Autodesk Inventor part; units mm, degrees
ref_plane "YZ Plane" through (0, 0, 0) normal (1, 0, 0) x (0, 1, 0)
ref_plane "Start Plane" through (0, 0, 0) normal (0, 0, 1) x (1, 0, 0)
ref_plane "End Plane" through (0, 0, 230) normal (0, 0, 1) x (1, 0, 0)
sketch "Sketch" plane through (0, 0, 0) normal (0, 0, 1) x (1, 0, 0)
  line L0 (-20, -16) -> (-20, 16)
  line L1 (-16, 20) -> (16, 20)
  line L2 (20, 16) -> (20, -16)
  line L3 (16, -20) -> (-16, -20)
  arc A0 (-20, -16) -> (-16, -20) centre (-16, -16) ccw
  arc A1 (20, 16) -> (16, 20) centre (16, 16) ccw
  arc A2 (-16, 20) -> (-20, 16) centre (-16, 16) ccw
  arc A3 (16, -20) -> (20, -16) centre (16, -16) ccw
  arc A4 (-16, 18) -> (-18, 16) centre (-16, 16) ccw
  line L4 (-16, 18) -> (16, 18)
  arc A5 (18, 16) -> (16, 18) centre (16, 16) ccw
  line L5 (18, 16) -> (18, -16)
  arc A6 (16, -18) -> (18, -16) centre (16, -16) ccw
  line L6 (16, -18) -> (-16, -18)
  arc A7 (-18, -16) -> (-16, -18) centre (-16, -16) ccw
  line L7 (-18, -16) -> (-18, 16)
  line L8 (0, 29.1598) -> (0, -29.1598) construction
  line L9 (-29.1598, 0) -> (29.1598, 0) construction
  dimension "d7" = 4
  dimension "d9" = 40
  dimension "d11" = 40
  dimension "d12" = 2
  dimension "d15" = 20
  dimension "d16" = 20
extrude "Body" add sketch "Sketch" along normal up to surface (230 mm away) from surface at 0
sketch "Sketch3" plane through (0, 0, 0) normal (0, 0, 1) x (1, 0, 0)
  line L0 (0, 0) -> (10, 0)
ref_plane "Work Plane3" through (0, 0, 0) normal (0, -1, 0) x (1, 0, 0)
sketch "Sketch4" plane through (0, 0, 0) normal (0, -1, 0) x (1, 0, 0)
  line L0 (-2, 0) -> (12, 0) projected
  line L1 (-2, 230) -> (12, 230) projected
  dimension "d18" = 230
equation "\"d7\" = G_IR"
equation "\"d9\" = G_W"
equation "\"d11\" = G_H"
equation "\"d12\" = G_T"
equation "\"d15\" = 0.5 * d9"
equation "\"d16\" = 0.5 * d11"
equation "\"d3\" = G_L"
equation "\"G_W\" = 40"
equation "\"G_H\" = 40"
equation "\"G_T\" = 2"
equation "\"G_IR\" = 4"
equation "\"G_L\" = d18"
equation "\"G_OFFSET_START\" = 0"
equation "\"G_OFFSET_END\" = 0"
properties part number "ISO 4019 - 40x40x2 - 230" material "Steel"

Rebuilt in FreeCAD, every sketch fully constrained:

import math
import FreeCAD as App
import Part
import Sketcher
Q = App.Units.Quantity

doc = App.newDocument("Part")
params = doc.addObject("Spreadsheet::Sheet", "Params")
for row, (alias, value) in enumerate([
    ("sketch1_radius", "4 mm"),
    ("sketch1_radius2", "2 mm"),
    ("pad1_length", "230 mm"),
], start=1):
    params.set(f"A{row}", alias)
    params.set(f"B{row}", "=" + value)
    params.setAlias(f"B{row}", alias)

body = doc.addObject("PartDesign::Body", "Body")

# Sketch on XY plane
sketch1 = body.newObject("Sketcher::SketchObject", "Sketch")
sketch1.AttachmentSupport = (doc.getObject("XY_Plane"), [""])
sketch1.MapMode = "FlatFace"
sketch1.addGeometry(Part.LineSegment(App.Vector(-20, 16, 0), App.Vector(-20, -16, 0)), False)
sketch1.addGeometry(Part.ArcOfCircle(Part.Circle(App.Vector(-16, -16, 0), App.Vector(0, 0, 1), 4), math.radians(180), math.radians(270)), False)
sketch1.addGeometry(Part.LineSegment(App.Vector(-16, -20, 0), App.Vector(16, -20, 0)), False)
sketch1.addGeometry(Part.ArcOfCircle(Part.Circle(App.Vector(16, -16, 0), App.Vector(0, 0, 1), 4), math.radians(-90), math.radians(0)), False)
sketch1.addGeometry(Part.LineSegment(App.Vector(20, -16, 0), App.Vector(20, 16, 0)), False)
sketch1.addGeometry(Part.ArcOfCircle(Part.Circle(App.Vector(16, 16, 0), App.Vector(0, 0, 1), 4), math.radians(0), math.radians(90)), False)
sketch1.addGeometry(Part.LineSegment(App.Vector(16, 20, 0), App.Vector(-16, 20, 0)), False)
sketch1.addGeometry(Part.ArcOfCircle(Part.Circle(App.Vector(-16, 16, 0), App.Vector(0, 0, 1), 4), math.radians(90), math.radians(180)), False)
sketch1.addGeometry(Part.ArcOfCircle(Part.Circle(App.Vector(-16, 16, 0), App.Vector(0, 0, 1), 2), math.radians(90), math.radians(180)), False)
sketch1.addGeometry(Part.LineSegment(App.Vector(-16, 18, 0), App.Vector(16, 18, 0)), False)
sketch1.addGeometry(Part.ArcOfCircle(Part.Circle(App.Vector(16, 16, 0), App.Vector(0, 0, 1), 2), math.radians(0), math.radians(90)), False)
sketch1.addGeometry(Part.LineSegment(App.Vector(18, 16, 0), App.Vector(18, -16, 0)), False)
sketch1.addGeometry(Part.ArcOfCircle(Part.Circle(App.Vector(16, -16, 0), App.Vector(0, 0, 1), 2), math.radians(-90), math.radians(0)), False)
sketch1.addGeometry(Part.LineSegment(App.Vector(16, -18, 0), App.Vector(-16, -18, 0)), False)
sketch1.addGeometry(Part.ArcOfCircle(Part.Circle(App.Vector(-16, -16, 0), App.Vector(0, 0, 1), 2), math.radians(180), math.radians(270)), False)
sketch1.addGeometry(Part.LineSegment(App.Vector(-18, -16, 0), App.Vector(-18, 16, 0)), False)
sketch1.addConstraint(Sketcher.Constraint("Tangent", 0, 2, 1, 1))
sketch1.addConstraint(Sketcher.Constraint("Tangent", 1, 2, 2, 1))
sketch1.addConstraint(Sketcher.Constraint("Tangent", 2, 2, 3, 1))
sketch1.addConstraint(Sketcher.Constraint("Tangent", 3, 2, 4, 1))
sketch1.addConstraint(Sketcher.Constraint("Tangent", 4, 2, 5, 1))
sketch1.addConstraint(Sketcher.Constraint("Tangent", 5, 2, 6, 1))
sketch1.addConstraint(Sketcher.Constraint("Tangent", 6, 2, 7, 1))
sketch1.addConstraint(Sketcher.Constraint("Tangent", 7, 2, 0, 1))
sketch1.addConstraint(Sketcher.Constraint("Tangent", 8, 1, 9, 1))
sketch1.addConstraint(Sketcher.Constraint("Tangent", 9, 2, 10, 2))
sketch1.addConstraint(Sketcher.Constraint("Tangent", 10, 1, 11, 1))
sketch1.addConstraint(Sketcher.Constraint("Tangent", 11, 2, 12, 2))
sketch1.addConstraint(Sketcher.Constraint("Tangent", 12, 1, 13, 1))
sketch1.addConstraint(Sketcher.Constraint("Tangent", 13, 2, 14, 2))
sketch1.addConstraint(Sketcher.Constraint("Tangent", 14, 1, 15, 1))
sketch1.addConstraint(Sketcher.Constraint("Tangent", 15, 2, 8, 2))
sketch1.addConstraint(Sketcher.Constraint("Vertical", 0))
sketch1.addConstraint(Sketcher.Constraint("Horizontal", 2))
sketch1.addConstraint(Sketcher.Constraint("Vertical", 4))
sketch1.addConstraint(Sketcher.Constraint("Horizontal", 6))
sketch1.addConstraint(Sketcher.Constraint("Horizontal", 9))
sketch1.addConstraint(Sketcher.Constraint("Vertical", 11))
sketch1.addConstraint(Sketcher.Constraint("Horizontal", 13))
sketch1.addConstraint(Sketcher.Constraint("Vertical", 15))
sketch1.addConstraint(Sketcher.Constraint("Coincident", 8, 3, 7, 3))
sketch1.addConstraint(Sketcher.Constraint("Coincident", 10, 3, 5, 3))
sketch1.addConstraint(Sketcher.Constraint("Coincident", 12, 3, 3, 3))
sketch1.addConstraint(Sketcher.Constraint("Equal", 1, 3))
sketch1.addConstraint(Sketcher.Constraint("Equal", 3, 5))
sketch1.addConstraint(Sketcher.Constraint("Equal", 5, 7))
sketch1.addConstraint(Sketcher.Constraint("Equal", 12, 14))
sketch1.addConstraint(Sketcher.Constraint("Symmetric", 1, 3, 5, 3, -1, 1))
sketch1.addConstraint(Sketcher.Constraint("Equal", 13, 0))
sketch1.addConstraint(Sketcher.Constraint("Radius", 1, Q("4 mm")))
sketch1.addConstraint(Sketcher.Constraint("Radius", 8, Q("2 mm")))
sketch1.addConstraint(Sketcher.Constraint("DistanceX", 0, 2, -1, 1, Q("20 mm")))
sketch1.setExpression("Constraints[33]", "Params.sketch1_radius")
sketch1.setExpression("Constraints[34]", "Params.sketch1_radius2")
pad1 = body.newObject("PartDesign::Pad", "Pad")
pad1.Profile = sketch1
pad1.setExpression("Length", "Params.pad1_length")

doc.recompute()
